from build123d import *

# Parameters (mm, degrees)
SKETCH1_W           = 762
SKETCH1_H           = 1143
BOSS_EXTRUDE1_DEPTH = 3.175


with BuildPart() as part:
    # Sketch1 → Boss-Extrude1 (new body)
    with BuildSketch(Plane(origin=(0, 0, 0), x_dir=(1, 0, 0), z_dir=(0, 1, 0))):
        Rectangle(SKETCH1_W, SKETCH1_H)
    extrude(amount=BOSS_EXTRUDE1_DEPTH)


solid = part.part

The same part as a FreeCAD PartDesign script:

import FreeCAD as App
import Part
import Sketcher

V = App.Vector
Q = App.Units.Quantity


def add_polygon(sketch, points):
    """Adds a closed chain of lines whose ends are joined by coincident constraints."""
    first, n = sketch.GeometryCount, len(points)
    for a, b in zip(points, points[1:] + points[:1]):
        sketch.addGeometry(Part.LineSegment(App.Vector(*a, 0), App.Vector(*b, 0)), False)
    for i in range(n):
        sketch.addConstraint(Sketcher.Constraint("Coincident", first + i, 2, first + (i + 1) % n, 1))

doc = App.newDocument("Part")
body = doc.addObject("PartDesign::Body", "Body")

# Sketch on XZ plane
sketch1 = doc.addObject("Sketcher::SketchObject", "Sketch")
body.addObject(sketch1)
sketch1.AttachmentSupport = (doc.XZ_Plane, [""])
sketch1.MapMode = "FlatFace"
add_polygon(sketch1, [(-381, -571.5), (-381, 571.5), (381, 571.5), (381, -571.5)])  # lines 0-3
sketch1.addConstraint(Sketcher.Constraint("Vertical", 0))
sketch1.addConstraint(Sketcher.Constraint("Horizontal", 1))
sketch1.addConstraint(Sketcher.Constraint("Vertical", 2))
sketch1.addConstraint(Sketcher.Constraint("Horizontal", 3))
sketch1.addConstraint(Sketcher.Constraint("Symmetric", 0, 2, 2, 2, -1, 1))
sketch1.addConstraint(Sketcher.Constraint("DistanceX", 1, 1, 1, 2, Q("30 in")))
sketch1.addConstraint(Sketcher.Constraint("DistanceY", 0, 1, 0, 2, Q("45 in")))
pad1 = doc.addObject("PartDesign::Pad", "Pad")
body.addObject(pad1)
pad1.Profile = sketch1
pad1.Length = Q("0.125 in")
pad1.Reversed = True

doc.recompute()
